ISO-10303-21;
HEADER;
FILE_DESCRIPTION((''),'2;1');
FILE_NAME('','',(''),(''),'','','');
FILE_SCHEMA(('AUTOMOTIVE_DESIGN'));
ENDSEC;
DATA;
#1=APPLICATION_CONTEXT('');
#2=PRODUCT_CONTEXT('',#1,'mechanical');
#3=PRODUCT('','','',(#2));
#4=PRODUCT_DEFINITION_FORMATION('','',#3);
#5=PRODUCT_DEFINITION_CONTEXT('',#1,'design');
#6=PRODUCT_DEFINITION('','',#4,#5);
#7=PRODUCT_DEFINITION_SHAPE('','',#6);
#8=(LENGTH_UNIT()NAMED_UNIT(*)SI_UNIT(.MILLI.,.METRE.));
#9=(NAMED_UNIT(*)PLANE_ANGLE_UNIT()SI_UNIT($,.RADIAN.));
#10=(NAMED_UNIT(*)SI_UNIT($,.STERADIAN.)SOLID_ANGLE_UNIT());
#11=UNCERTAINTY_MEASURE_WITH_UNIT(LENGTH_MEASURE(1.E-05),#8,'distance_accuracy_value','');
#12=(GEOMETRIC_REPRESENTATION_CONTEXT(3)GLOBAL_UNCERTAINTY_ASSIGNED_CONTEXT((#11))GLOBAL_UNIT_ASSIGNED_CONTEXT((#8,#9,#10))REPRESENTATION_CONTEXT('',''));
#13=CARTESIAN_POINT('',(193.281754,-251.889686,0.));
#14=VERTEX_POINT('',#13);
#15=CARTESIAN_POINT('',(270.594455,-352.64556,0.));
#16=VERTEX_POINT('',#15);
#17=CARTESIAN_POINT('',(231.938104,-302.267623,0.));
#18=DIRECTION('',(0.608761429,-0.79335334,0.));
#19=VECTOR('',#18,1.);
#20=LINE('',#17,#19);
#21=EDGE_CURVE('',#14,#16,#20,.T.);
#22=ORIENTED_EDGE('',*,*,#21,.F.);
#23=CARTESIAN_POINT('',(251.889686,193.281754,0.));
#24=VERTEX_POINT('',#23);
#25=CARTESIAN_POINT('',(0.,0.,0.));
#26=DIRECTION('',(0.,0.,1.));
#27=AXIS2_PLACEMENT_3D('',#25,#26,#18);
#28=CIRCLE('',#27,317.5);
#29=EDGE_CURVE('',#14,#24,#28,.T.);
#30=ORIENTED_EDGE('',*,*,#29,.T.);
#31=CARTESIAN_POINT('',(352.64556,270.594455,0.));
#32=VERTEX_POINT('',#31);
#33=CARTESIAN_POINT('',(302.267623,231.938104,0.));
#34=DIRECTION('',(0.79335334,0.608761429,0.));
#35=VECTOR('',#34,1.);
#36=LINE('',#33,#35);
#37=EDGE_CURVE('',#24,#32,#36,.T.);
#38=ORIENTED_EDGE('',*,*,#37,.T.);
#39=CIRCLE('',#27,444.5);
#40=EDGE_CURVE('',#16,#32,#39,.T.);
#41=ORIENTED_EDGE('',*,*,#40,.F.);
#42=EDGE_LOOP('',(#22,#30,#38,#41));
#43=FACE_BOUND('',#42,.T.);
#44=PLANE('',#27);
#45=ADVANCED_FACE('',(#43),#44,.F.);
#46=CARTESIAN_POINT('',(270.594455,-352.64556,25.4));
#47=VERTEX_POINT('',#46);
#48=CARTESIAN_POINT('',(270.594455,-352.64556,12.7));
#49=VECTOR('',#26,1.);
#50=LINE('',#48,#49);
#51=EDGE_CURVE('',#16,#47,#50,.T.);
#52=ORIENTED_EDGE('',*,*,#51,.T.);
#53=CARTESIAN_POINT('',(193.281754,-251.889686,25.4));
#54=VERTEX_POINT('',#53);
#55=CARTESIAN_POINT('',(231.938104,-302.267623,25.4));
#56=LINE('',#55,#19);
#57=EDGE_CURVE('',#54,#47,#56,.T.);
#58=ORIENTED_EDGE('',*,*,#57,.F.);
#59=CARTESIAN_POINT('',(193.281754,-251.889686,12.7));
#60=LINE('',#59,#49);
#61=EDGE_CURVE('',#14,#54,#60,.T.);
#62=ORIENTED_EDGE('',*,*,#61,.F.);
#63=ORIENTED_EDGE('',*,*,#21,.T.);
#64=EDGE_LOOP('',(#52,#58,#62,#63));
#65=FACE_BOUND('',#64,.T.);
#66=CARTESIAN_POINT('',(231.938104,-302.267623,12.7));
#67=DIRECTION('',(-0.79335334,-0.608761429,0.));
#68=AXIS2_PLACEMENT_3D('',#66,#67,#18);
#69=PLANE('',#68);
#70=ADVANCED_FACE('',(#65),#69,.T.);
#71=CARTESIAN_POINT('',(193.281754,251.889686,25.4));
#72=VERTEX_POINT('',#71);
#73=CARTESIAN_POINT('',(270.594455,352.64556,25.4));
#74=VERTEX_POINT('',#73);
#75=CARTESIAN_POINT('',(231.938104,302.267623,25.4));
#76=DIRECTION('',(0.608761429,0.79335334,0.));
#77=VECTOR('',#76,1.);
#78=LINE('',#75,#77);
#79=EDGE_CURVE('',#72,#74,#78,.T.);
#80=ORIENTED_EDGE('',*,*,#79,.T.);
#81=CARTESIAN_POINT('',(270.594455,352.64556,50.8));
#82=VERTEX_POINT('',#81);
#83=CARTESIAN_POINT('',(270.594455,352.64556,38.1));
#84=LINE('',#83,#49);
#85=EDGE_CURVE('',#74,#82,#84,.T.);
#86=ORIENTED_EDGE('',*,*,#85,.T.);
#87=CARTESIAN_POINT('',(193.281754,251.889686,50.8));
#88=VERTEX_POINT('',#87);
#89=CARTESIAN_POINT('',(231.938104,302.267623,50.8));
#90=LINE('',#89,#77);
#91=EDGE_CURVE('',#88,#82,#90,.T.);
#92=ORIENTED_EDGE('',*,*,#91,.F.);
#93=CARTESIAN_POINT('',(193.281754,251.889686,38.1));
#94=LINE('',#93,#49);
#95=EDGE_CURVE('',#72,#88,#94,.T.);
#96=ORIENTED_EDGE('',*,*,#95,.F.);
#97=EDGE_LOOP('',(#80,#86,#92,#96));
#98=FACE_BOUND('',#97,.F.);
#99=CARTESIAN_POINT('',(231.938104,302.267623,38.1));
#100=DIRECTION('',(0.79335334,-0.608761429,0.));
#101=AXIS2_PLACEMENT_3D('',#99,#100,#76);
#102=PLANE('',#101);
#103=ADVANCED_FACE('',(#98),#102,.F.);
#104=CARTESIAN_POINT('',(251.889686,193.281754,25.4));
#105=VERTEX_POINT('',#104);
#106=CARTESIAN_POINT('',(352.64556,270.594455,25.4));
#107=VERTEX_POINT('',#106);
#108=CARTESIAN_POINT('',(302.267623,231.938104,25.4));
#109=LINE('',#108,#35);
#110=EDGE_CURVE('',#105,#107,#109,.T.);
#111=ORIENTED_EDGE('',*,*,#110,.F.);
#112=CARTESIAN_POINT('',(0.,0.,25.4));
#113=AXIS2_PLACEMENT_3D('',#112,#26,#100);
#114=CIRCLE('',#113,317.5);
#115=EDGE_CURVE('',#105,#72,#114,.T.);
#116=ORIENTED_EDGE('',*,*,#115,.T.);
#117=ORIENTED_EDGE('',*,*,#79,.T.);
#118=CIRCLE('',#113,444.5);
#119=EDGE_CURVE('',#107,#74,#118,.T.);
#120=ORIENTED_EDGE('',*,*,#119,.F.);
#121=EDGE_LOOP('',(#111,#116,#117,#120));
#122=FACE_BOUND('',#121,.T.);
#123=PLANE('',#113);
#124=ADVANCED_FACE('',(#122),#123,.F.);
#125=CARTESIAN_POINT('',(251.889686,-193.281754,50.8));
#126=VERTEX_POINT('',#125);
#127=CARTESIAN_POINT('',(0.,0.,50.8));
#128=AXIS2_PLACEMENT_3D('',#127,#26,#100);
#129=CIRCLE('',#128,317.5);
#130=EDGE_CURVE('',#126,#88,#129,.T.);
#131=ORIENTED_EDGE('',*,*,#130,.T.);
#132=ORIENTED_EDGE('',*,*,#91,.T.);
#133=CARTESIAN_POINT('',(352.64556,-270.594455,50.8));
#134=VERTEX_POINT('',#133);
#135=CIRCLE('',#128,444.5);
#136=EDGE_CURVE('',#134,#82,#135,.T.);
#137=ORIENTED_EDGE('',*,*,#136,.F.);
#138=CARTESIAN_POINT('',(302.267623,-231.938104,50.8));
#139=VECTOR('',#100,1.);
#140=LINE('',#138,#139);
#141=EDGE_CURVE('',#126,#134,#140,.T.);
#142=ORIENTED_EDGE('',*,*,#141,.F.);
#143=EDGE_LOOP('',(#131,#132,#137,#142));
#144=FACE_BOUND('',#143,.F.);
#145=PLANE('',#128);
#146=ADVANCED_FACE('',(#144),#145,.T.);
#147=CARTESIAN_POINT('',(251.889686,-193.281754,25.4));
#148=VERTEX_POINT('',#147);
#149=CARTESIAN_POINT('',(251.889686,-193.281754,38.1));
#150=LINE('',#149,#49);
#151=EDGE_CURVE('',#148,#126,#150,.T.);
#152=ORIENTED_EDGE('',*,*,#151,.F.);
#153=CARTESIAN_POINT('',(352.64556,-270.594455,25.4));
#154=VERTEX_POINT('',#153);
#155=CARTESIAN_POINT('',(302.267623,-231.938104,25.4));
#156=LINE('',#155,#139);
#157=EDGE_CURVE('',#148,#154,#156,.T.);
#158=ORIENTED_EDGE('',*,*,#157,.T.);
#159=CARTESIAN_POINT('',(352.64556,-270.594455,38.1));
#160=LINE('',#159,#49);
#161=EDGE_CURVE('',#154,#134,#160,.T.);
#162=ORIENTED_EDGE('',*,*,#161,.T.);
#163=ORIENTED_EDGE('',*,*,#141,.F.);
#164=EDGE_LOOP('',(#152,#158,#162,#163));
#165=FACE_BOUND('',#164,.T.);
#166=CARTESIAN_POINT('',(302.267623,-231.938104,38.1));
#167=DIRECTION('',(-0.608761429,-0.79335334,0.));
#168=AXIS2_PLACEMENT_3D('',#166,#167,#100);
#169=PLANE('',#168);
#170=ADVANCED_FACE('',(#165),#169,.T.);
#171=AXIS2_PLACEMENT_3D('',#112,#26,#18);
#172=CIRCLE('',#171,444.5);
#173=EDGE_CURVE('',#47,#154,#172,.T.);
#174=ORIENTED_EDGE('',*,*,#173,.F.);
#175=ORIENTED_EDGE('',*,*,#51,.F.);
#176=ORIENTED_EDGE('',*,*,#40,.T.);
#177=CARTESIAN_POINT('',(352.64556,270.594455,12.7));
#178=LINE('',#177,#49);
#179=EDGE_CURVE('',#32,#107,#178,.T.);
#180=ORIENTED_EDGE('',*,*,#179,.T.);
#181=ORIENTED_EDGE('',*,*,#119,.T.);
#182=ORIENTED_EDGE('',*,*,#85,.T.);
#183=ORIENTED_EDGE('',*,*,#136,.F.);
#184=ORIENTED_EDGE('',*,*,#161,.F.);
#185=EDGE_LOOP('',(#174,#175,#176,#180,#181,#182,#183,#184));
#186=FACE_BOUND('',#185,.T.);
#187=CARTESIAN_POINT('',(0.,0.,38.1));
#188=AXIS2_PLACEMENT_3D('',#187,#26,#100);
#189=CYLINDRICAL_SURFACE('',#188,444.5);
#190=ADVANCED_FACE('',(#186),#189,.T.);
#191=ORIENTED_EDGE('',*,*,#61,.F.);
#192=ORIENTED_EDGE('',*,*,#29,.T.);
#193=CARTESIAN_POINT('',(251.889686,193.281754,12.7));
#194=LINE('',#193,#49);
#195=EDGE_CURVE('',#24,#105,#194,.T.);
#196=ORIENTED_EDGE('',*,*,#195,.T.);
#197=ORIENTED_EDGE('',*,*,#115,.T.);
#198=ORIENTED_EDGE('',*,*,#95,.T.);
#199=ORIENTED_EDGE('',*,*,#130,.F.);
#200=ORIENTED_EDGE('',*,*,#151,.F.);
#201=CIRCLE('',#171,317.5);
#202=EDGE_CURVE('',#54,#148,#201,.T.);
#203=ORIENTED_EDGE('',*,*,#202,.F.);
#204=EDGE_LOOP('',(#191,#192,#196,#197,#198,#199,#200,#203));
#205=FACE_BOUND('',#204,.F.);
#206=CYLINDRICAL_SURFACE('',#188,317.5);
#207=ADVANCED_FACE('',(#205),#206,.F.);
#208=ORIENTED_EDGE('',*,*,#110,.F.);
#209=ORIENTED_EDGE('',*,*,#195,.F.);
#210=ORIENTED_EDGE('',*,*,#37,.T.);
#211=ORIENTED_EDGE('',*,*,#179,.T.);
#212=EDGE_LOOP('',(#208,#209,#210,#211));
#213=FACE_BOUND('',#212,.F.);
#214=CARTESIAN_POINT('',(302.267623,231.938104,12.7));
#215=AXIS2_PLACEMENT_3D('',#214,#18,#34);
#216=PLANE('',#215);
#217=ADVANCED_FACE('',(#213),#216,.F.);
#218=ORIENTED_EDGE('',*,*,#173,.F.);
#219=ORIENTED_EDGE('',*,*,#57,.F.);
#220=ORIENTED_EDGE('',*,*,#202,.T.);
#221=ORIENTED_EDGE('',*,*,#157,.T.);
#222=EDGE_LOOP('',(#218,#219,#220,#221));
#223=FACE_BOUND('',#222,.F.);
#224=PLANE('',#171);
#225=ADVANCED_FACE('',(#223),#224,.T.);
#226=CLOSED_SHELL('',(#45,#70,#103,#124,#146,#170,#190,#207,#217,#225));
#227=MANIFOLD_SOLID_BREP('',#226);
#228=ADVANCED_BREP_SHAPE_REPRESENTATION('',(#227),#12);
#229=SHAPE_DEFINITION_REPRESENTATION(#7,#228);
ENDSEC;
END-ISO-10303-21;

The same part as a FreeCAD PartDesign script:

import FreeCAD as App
import Part
import Sketcher

V = App.Vector
Q = App.Units.Quantity


def add_polygon(sketch, points):
    """Adds a closed chain of lines whose ends are joined by coincident constraints."""
    first, n = sketch.GeometryCount, len(points)
    for a, b in zip(points, points[1:] + points[:1]):
        sketch.addGeometry(Part.LineSegment(App.Vector(*a, 0), App.Vector(*b, 0)), False)
    for i in range(n):
        sketch.addConstraint(Sketcher.Constraint("Coincident", first + i, 2, first + (i + 1) % n, 1))

doc = App.newDocument("Part")
body = doc.addObject("PartDesign::Body", "Body")

sketch1 = body.newObject("Sketcher::SketchObject", "Sketch")
sketch1.Placement = App.Placement(V(0, 0, 0), App.Rotation(V(0.608761429, -0.79335334, 0), V(0, 0, 1), V(-0.79335334, -0.608761429, 0), "ZXY"))
add_polygon(sketch1, [(317.5, 25.4), (317.5, 0), (444.5, 0), (444.5, 25.4)])
sketch1.addConstraint([
    Sketcher.Constraint("Vertical", 0),
    Sketcher.Constraint("Horizontal", 1),
    Sketcher.Constraint("Vertical", 2),
    Sketcher.Constraint("Horizontal", 3),
    Sketcher.Constraint("PointOnObject", 0, 2, -1),
    Sketcher.Constraint("DistanceX", 1, 1, 1, 2, Q("5 in")),
    Sketcher.Constraint("DistanceY", 0, 2, 0, 1, Q("1 in")),
    Sketcher.Constraint("DistanceX", -1, 1, 0, 2, Q("12.5 in")),
])
revolution = body.newObject("PartDesign::Revolution", "Revolution")
revolution.Profile = sketch1
revolution.ReferenceAxis = (sketch1, ["V_Axis"])
revolution.Angle = 90

sketch2 = body.newObject("Sketcher::SketchObject", "Sketch001")
sketch2.Placement = App.Placement(V(0, 0, 0), App.Rotation(V(0.79335334, -0.608761429, 0), V(0, 0, 1), V(-0.608761429, -0.79335334, 0), "ZXY"))
add_polygon(sketch2, [(317.5, 50.8), (317.5, 25.4), (444.5, 25.4), (444.5, 50.8)])
sketch2.addConstraint([
    Sketcher.Constraint("Vertical", 0),
    Sketcher.Constraint("Horizontal", 1),
    Sketcher.Constraint("Vertical", 2),
    Sketcher.Constraint("Horizontal", 3),
    Sketcher.Constraint("DistanceX", 1, 1, 1, 2, Q("5 in")),
    Sketcher.Constraint("DistanceY", 0, 2, 0, 1, Q("1 in")),
    Sketcher.Constraint("DistanceY", -1, 1, 0, 2, Q("1 in")),
    Sketcher.Constraint("DistanceX", -1, 1, 0, 2, Q("12.5 in")),
])
revolution2 = body.newObject("PartDesign::Revolution", "Revolution001")
revolution2.Profile = sketch2
revolution2.ReferenceAxis = (sketch2, ["V_Axis"])
revolution2.Angle = 90

doc.recompute()
